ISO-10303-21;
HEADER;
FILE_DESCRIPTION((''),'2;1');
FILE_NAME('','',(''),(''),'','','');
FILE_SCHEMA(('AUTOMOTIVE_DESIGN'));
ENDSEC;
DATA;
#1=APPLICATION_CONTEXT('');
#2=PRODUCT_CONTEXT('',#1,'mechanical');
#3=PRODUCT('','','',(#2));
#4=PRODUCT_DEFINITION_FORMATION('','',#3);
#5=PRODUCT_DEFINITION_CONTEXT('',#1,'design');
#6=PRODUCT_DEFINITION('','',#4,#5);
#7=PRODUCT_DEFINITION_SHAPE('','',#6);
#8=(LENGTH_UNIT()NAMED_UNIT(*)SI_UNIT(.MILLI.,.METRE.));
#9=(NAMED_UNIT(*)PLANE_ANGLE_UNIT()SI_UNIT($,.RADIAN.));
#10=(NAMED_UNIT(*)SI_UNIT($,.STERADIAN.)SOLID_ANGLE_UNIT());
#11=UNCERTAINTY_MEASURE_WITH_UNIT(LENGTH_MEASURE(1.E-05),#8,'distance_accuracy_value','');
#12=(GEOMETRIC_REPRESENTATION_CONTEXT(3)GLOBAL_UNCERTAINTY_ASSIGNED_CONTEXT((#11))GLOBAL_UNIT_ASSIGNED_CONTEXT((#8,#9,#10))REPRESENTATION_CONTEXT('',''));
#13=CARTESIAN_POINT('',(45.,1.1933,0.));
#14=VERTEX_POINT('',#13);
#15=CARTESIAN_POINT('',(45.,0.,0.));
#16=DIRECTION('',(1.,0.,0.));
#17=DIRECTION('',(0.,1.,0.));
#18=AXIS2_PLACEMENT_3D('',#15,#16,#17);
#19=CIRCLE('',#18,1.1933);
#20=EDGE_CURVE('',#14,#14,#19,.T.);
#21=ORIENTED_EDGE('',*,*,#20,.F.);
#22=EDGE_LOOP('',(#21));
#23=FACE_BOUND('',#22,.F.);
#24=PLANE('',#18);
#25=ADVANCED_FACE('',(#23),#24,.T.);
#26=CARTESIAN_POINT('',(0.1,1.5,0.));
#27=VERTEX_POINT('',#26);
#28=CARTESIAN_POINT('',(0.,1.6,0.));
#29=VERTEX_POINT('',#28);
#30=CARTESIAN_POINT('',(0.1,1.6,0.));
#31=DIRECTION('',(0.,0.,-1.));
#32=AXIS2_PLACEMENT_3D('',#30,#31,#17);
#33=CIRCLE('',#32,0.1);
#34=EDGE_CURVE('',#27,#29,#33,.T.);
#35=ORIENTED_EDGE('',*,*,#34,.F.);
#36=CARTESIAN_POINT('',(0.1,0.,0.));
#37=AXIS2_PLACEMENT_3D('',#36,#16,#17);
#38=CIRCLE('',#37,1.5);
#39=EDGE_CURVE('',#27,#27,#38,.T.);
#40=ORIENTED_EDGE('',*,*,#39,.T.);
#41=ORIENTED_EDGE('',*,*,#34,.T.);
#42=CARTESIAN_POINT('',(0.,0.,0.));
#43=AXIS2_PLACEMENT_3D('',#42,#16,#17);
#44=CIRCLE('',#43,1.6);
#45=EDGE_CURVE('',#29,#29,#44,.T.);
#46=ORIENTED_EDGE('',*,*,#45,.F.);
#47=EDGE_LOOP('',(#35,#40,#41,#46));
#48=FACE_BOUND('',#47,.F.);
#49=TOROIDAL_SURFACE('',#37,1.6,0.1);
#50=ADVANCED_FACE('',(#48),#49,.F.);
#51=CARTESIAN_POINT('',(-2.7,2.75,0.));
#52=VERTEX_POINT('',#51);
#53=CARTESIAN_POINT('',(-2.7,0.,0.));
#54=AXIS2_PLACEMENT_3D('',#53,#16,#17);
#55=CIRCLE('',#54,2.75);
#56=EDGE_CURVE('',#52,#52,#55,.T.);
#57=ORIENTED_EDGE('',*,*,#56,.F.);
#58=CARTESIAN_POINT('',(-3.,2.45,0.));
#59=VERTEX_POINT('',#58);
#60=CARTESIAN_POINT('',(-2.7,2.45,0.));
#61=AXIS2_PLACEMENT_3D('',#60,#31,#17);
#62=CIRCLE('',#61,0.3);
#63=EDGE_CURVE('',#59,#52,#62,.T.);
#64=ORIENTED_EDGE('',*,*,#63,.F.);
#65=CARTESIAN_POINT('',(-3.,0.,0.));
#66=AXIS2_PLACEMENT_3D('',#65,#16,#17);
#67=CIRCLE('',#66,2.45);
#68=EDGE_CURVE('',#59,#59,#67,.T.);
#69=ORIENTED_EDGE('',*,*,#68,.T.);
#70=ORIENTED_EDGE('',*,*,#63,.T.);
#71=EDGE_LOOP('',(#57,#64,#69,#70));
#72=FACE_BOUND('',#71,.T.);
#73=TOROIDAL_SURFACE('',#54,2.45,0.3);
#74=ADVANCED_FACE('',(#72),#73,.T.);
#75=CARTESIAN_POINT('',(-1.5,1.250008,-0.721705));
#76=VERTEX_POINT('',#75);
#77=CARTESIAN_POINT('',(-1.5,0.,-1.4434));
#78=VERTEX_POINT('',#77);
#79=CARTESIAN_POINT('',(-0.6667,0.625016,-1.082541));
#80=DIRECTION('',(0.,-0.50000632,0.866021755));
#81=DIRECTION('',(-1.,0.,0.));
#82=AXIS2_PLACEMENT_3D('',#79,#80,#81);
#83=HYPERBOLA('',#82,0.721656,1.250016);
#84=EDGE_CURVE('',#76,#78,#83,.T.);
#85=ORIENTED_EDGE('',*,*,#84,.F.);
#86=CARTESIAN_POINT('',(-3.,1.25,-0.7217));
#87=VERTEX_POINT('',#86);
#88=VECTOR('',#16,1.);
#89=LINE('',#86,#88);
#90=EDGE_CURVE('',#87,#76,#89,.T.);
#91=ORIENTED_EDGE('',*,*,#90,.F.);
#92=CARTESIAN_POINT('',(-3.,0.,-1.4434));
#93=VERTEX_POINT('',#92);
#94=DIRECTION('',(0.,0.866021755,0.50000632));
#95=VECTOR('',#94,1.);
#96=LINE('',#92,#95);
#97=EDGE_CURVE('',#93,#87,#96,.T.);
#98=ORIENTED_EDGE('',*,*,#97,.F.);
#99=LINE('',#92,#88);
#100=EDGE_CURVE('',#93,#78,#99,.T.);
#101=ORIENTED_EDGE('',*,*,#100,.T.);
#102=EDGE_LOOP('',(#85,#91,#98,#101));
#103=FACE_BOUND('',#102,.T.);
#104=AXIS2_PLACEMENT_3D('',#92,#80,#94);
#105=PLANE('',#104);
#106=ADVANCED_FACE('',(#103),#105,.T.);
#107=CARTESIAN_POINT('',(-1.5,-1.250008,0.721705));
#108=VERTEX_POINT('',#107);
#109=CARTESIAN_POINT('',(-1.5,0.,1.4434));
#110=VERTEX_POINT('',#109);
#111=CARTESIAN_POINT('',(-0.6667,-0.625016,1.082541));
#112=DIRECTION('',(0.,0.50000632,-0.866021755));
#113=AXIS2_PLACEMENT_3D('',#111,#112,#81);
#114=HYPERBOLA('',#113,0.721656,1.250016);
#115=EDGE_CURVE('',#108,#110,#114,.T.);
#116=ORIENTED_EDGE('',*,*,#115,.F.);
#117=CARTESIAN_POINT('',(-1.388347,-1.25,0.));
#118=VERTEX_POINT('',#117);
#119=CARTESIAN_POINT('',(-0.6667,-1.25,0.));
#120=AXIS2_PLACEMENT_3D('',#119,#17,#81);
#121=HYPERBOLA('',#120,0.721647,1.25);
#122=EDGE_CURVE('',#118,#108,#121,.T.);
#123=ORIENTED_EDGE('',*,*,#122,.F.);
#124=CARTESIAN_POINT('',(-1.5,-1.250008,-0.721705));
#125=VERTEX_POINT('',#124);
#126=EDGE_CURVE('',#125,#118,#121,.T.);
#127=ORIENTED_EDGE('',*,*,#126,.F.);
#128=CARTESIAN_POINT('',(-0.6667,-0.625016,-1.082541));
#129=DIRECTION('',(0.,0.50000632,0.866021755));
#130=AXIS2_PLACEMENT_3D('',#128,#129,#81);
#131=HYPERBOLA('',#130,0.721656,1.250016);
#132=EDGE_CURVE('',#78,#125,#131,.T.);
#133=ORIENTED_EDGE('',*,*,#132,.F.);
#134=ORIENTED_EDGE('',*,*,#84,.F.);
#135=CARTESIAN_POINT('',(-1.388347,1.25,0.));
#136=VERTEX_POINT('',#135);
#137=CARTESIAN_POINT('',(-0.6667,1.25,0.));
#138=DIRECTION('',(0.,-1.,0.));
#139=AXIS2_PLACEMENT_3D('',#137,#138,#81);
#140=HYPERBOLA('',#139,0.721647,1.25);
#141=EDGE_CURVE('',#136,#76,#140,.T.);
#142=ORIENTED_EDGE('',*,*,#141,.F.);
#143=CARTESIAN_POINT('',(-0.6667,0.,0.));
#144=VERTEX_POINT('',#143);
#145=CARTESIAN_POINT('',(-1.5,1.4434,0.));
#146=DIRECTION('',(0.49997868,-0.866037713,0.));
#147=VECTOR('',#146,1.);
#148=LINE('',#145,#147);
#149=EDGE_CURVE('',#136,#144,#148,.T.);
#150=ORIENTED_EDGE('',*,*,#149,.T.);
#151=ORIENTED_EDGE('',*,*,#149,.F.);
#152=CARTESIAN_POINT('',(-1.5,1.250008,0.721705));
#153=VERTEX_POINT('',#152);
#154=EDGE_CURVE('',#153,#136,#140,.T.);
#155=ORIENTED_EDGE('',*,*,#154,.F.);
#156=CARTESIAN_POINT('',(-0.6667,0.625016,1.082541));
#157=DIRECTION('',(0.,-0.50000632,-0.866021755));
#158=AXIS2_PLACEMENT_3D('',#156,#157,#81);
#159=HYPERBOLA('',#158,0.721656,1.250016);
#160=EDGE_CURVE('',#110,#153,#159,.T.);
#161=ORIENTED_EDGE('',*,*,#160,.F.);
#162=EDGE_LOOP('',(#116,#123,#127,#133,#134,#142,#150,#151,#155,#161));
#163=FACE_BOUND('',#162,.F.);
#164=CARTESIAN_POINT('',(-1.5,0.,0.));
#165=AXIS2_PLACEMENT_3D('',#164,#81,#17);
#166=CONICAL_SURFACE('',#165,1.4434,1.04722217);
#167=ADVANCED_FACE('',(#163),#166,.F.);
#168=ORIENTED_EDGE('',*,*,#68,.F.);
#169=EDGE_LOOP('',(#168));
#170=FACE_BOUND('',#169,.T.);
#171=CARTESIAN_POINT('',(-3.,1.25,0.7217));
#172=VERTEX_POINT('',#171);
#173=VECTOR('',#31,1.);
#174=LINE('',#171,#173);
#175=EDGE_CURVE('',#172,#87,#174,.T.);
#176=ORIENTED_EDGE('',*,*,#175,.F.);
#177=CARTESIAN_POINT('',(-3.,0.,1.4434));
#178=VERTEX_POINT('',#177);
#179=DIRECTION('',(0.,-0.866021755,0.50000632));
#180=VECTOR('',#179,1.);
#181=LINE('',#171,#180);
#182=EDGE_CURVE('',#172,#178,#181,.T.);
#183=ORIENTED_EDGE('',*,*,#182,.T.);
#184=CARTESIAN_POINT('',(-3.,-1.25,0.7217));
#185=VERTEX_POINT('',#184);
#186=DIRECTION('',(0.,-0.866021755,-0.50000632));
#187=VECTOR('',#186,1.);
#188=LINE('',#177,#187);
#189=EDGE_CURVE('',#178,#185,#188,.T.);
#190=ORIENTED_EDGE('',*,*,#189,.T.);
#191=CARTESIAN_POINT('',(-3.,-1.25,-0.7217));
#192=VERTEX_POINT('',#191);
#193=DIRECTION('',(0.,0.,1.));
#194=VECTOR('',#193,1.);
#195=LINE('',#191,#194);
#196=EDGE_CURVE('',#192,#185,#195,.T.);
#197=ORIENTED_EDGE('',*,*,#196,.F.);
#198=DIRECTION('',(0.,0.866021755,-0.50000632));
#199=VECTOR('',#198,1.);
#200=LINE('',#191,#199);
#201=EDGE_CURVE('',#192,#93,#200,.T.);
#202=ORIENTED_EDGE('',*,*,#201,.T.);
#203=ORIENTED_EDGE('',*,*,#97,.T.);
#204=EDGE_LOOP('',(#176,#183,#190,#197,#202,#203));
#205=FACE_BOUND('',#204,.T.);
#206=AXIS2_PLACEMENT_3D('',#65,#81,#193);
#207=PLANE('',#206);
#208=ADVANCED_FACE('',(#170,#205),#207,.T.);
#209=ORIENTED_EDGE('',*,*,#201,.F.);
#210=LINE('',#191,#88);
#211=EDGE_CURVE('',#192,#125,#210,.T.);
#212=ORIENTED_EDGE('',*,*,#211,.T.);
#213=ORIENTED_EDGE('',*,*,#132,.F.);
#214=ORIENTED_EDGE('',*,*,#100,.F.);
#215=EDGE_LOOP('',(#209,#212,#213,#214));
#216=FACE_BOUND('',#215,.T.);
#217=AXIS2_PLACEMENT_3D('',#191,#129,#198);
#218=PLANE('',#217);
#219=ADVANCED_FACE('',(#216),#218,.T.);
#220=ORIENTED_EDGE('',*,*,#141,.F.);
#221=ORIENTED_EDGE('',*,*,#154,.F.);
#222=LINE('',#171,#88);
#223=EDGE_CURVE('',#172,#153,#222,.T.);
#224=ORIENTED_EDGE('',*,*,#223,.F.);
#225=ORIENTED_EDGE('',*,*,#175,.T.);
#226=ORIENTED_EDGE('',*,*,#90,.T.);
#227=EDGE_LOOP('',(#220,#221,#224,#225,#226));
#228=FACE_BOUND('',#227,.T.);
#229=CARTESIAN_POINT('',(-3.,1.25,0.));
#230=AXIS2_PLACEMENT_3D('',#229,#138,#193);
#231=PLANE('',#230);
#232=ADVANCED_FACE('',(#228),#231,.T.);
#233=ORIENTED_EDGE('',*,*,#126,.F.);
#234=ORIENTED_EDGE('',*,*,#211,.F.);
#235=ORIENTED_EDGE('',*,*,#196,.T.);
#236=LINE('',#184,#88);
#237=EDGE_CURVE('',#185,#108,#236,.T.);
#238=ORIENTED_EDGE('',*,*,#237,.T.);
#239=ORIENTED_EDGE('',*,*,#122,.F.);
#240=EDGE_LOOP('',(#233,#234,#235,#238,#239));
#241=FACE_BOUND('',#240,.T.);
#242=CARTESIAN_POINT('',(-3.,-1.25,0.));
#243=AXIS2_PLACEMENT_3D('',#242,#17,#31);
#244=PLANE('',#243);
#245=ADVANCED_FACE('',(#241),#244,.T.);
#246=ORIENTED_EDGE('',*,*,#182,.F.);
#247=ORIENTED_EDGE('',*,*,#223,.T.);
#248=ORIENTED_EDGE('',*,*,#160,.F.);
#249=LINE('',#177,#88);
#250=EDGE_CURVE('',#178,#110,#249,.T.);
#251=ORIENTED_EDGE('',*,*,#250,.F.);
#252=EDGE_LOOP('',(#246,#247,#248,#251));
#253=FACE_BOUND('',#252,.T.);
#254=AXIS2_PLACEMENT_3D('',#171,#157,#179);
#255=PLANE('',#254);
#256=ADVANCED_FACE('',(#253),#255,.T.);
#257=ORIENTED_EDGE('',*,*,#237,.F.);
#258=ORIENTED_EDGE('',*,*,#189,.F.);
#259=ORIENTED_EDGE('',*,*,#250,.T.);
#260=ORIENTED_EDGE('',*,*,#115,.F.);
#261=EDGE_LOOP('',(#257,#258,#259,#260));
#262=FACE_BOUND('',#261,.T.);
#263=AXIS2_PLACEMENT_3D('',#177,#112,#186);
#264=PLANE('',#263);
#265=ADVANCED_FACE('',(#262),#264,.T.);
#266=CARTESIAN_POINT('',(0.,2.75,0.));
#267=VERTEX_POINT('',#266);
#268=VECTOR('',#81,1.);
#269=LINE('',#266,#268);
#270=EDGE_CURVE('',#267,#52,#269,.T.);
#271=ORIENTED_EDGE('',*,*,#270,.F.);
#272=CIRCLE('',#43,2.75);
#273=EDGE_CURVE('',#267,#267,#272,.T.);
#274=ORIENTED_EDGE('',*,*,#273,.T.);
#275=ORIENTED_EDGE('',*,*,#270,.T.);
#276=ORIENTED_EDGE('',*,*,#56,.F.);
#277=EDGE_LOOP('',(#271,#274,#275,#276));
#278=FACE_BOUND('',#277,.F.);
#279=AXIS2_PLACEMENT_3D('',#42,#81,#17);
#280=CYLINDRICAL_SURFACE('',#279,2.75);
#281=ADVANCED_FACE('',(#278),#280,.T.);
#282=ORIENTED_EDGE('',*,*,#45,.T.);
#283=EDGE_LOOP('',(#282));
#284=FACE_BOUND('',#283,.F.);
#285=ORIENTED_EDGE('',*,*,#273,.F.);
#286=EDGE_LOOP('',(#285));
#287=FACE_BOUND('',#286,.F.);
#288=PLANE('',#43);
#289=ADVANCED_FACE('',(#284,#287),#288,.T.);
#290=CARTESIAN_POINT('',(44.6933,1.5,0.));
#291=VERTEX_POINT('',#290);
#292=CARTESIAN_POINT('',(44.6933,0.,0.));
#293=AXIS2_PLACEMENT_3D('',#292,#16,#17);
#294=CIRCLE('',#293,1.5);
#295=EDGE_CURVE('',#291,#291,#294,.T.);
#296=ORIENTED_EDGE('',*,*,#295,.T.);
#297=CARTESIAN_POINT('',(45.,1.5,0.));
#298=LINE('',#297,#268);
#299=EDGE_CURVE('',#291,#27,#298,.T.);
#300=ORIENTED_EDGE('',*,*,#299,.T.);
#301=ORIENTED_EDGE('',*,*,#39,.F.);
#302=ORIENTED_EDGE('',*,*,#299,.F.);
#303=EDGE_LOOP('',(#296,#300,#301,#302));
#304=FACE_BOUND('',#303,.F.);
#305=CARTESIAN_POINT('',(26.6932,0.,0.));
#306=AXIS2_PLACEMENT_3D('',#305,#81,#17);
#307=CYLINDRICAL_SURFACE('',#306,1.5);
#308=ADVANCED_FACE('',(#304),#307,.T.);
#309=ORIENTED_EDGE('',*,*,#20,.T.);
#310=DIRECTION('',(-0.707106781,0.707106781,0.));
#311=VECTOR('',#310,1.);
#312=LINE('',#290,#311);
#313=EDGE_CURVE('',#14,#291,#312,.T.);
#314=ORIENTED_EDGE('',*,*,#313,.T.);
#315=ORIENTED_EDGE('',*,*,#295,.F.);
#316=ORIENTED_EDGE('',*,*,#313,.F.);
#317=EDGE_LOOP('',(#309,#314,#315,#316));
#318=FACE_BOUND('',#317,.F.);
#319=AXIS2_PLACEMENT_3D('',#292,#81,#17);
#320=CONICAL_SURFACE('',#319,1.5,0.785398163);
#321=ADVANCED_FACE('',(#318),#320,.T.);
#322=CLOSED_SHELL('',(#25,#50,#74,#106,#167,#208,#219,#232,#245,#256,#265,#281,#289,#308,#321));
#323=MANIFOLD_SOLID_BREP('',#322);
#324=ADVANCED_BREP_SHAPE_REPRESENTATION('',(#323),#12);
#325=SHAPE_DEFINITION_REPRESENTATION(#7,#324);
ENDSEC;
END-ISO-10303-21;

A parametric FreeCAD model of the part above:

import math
import FreeCAD as App
import Part
import Sketcher
from FreeCAD import Vector
Q = App.Units.Quantity


def edges_at(feature, points):
    """Names of the edges that pass closest to the given points."""
    edges = feature.Shape.Edges
    near = lambda p: min(range(len(edges)), key=lambda i: edges[i].distToShape(Part.Vertex(*p))[0])
    return sorted({f"Edge{near(p) + 1}" for p in points})

doc = App.newDocument("Part")
body = doc.addObject("PartDesign::Body", "Body")

sketch1 = body.newObject("Sketcher::SketchObject", "Sketch")
sketch1.AttachmentSupport = (doc.getObject("XY_Plane"), [""])
sketch1.MapMode = "FlatFace"
sketch1.addGeometry(Part.LineSegment(Vector(-1.5, 1.4, 0), Vector(-0.7, 0, 0)), False)
sketch1.addGeometry(Part.LineSegment(Vector(-0.7, 0, 0), Vector(45, 0, 0)), False)
sketch1.addGeometry(Part.LineSegment(Vector(45, 0, 0), Vector(45, 1.5, 0)), False)
sketch1.addGeometry(Part.LineSegment(Vector(45, 1.5, 0), Vector(0, 1.5, 0)), False)
sketch1.addGeometry(Part.LineSegment(Vector(0, 1.5, 0), Vector(0, 2.8, 0)), False)
sketch1.addGeometry(Part.LineSegment(Vector(0, 2.8, 0), Vector(-3, 2.8, 0)), False)
sketch1.addGeometry(Part.LineSegment(Vector(-3, 2.8, 0), Vector(-3, 1.4, 0)), False)
sketch1.addGeometry(Part.LineSegment(Vector(-3, 1.4, 0), Vector(-1.5, 1.4, 0)), False)
sketch1.addConstraint(Sketcher.Constraint("Coincident", 0, 2, 1, 1))
sketch1.addConstraint(Sketcher.Constraint("Coincident", 1, 2, 2, 1))
sketch1.addConstraint(Sketcher.Constraint("Coincident", 2, 2, 3, 1))
sketch1.addConstraint(Sketcher.Constraint("Coincident", 3, 2, 4, 1))
sketch1.addConstraint(Sketcher.Constraint("Coincident", 4, 2, 5, 1))
sketch1.addConstraint(Sketcher.Constraint("Coincident", 5, 2, 6, 1))
sketch1.addConstraint(Sketcher.Constraint("Coincident", 6, 2, 7, 1))
sketch1.addConstraint(Sketcher.Constraint("Coincident", 7, 2, 0, 1))
sketch1.addConstraint(Sketcher.Constraint("Horizontal", 1))
sketch1.addConstraint(Sketcher.Constraint("Vertical", 2))
sketch1.addConstraint(Sketcher.Constraint("Horizontal", 3))
sketch1.addConstraint(Sketcher.Constraint("Vertical", 4))
sketch1.addConstraint(Sketcher.Constraint("Horizontal", 5))
sketch1.addConstraint(Sketcher.Constraint("Vertical", 6))
sketch1.addConstraint(Sketcher.Constraint("Horizontal", 7))
sketch1.addConstraint(Sketcher.Constraint("PointOnObject", 0, 2, -1))
sketch1.addConstraint(Sketcher.Constraint("PointOnObject", 3, 2, -2))
sketch1.addConstraint(Sketcher.Constraint("Equal", 7, 2))
sketch1.addConstraint(Sketcher.Constraint("DistanceX", 3, 2, 3, 1, 45.0))
sketch1.addConstraint(Sketcher.Constraint("DistanceX", 5, 2, 5, 1, 3.0))
sketch1.addConstraint(Sketcher.Constraint("DistanceX", 7, 1, 7, 2, 1.5))
sketch1.addConstraint(Sketcher.Constraint("DistanceY", 4, 1, 4, 2, 1.25))
sketch1.addConstraint(Sketcher.Constraint("DistanceX", 1, 1, 1, 2, 45.6667))
sketch1.addConstraint(Sketcher.Constraint("DistanceY", 6, 2, 6, 1, 1.3066))
revolution = body.newObject("PartDesign::Revolution", "Revolution")
revolution.Profile = sketch1
revolution.ReferenceAxis = (sketch1, ["H_Axis"])
revolution.Angle = 360

sketch2 = body.newObject("Sketcher::SketchObject", "Sketch001")
sketch2.AttachmentSupport = (doc.getObject("YZ_Plane"), [""])
sketch2.MapMode = "FlatFace"
sketch2.AttachmentOffset = App.Placement(Vector(0, 0, -3), App.Rotation())
sketch2.addGeometry(Part.LineSegment(Vector(1.2, 0.7, 0), Vector(0, 1.4, 0)), False)
sketch2.addGeometry(Part.ArcOfCircle(Part.Circle(Vector(0, 0, 0), Vector(0, 0, 1), 1.4), math.radians(30), math.radians(90)), False)
sketch2.addGeometry(Part.ArcOfCircle(Part.Circle(Vector(0, 0, 0), Vector(0, 0, 1), 1.4), math.radians(90), math.radians(150)), False)
sketch2.addGeometry(Part.LineSegment(Vector(0, 1.4, 0), Vector(-1.2, 0.7, 0)), False)
sketch2.addGeometry(Part.ArcOfCircle(Part.Circle(Vector(0, 0, 0), Vector(0, 0, 1), 1.4), math.radians(-30), math.radians(30)), False)
sketch2.addGeometry(Part.LineSegment(Vector(1.2, 0.7, 0), Vector(1.2, -0.7, 0)), False)
sketch2.addGeometry(Part.LineSegment(Vector(-1.2, 0.7, 0), Vector(-1.2, -0.7, 0)), False)
sketch2.addGeometry(Part.ArcOfCircle(Part.Circle(Vector(0, 0, 0), Vector(0, 0, 1), 1.4), math.radians(150), math.radians(210)), False)
sketch2.addGeometry(Part.LineSegment(Vector(-1.2, -0.7, 0), Vector(0, -1.4, 0)), False)
sketch2.addGeometry(Part.ArcOfCircle(Part.Circle(Vector(0, 0, 0), Vector(0, 0, 1), 1.4), math.radians(-150), math.radians(-90)), False)
sketch2.addGeometry(Part.ArcOfCircle(Part.Circle(Vector(0, 0, 0), Vector(0, 0, 1), 1.4), math.radians(-90), math.radians(-30)), False)
sketch2.addGeometry(Part.LineSegment(Vector(0, -1.4, 0), Vector(1.2, -0.7, 0)), False)
sketch2.addConstraint(Sketcher.Constraint("Coincident", 0, 1, 1, 1))
sketch2.addConstraint(Sketcher.Constraint("Coincident", 1, 2, 0, 2))
sketch2.addConstraint(Sketcher.Constraint("Coincident", 2, 1, 3, 1))
sketch2.addConstraint(Sketcher.Constraint("Coincident", 3, 2, 2, 2))
sketch2.addConstraint(Sketcher.Constraint("Coincident", 4, 1, 5, 2))
sketch2.addConstraint(Sketcher.Constraint("Coincident", 5, 1, 4, 2))
sketch2.addConstraint(Sketcher.Constraint("Coincident", 6, 1, 7, 1))
sketch2.addConstraint(Sketcher.Constraint("Coincident", 7, 2, 6, 2))
sketch2.addConstraint(Sketcher.Constraint("Coincident", 8, 1, 9, 1))
sketch2.addConstraint(Sketcher.Constraint("Coincident", 9, 2, 8, 2))
sketch2.addConstraint(Sketcher.Constraint("Coincident", 10, 1, 11, 1))
sketch2.addConstraint(Sketcher.Constraint("Coincident", 11, 2, 10, 2))
sketch2.addConstraint(Sketcher.Constraint("Vertical", 5))
sketch2.addConstraint(Sketcher.Constraint("Vertical", 6))
sketch2.addConstraint(Sketcher.Constraint("Coincident", 1, 3, -1, 1))
sketch2.addConstraint(Sketcher.Constraint("Coincident", 2, 3, -1, 1))
sketch2.addConstraint(Sketcher.Constraint("Coincident", 4, 3, -1, 1))
sketch2.addConstraint(Sketcher.Constraint("Coincident", 7, 3, -1, 1))
sketch2.addConstraint(Sketcher.Constraint("Coincident", 9, 3, -1, 1))
sketch2.addConstraint(Sketcher.Constraint("Coincident", 10, 3, -1, 1))
sketch2.addConstraint(Sketcher.Constraint("Coincident", 2, 1, 1, 2))
sketch2.addConstraint(Sketcher.Constraint("Coincident", 5, 1, 0, 1))
sketch2.addConstraint(Sketcher.Constraint("Coincident", 6, 1, 3, 2))
sketch2.addConstraint(Sketcher.Constraint("Coincident", 8, 1, 7, 2))
sketch2.addConstraint(Sketcher.Constraint("Coincident", 10, 1, 9, 2))
sketch2.addConstraint(Sketcher.Constraint("PointOnObject", 1, 2, -2))
sketch2.addConstraint(Sketcher.Constraint("PointOnObject", 9, 2, -2))
sketch2.addConstraint(Sketcher.Constraint("Parallel", 0, 8))
sketch2.addConstraint(Sketcher.Constraint("Parallel", 3, 11))
sketch2.addConstraint(Sketcher.Constraint("Angle", 0, Q("149.9996 deg")))
sketch2.addConstraint(Sketcher.Constraint("Radius", 1, 1.4434))
pad1 = body.newObject("PartDesign::Pad", "Pad")
pad1.Profile = sketch2
pad1.Type = "UpToFirst"
doc.recompute()

fillet = body.newObject("PartDesign::Fillet", "Fillet")
fillet.Base = (pad1, edges_at(pad1, [(-3, -2.75, 0)]))
fillet.Radius = 0.3
doc.recompute()

chamfer = body.newObject("PartDesign::Chamfer", "Chamfer")
chamfer.Base = (fillet, edges_at(fillet, [(45, -1.5, 0)]))
chamfer.ChamferType = "Two distances"
chamfer.Size = 0.3067
chamfer.Size2 = 0.3067
doc.recompute()

fillet2 = body.newObject("PartDesign::Fillet", "Fillet001")
fillet2.Base = (chamfer, edges_at(chamfer, [(0, -1.5, 0)]))
fillet2.Radius = 0.1

doc.recompute()
